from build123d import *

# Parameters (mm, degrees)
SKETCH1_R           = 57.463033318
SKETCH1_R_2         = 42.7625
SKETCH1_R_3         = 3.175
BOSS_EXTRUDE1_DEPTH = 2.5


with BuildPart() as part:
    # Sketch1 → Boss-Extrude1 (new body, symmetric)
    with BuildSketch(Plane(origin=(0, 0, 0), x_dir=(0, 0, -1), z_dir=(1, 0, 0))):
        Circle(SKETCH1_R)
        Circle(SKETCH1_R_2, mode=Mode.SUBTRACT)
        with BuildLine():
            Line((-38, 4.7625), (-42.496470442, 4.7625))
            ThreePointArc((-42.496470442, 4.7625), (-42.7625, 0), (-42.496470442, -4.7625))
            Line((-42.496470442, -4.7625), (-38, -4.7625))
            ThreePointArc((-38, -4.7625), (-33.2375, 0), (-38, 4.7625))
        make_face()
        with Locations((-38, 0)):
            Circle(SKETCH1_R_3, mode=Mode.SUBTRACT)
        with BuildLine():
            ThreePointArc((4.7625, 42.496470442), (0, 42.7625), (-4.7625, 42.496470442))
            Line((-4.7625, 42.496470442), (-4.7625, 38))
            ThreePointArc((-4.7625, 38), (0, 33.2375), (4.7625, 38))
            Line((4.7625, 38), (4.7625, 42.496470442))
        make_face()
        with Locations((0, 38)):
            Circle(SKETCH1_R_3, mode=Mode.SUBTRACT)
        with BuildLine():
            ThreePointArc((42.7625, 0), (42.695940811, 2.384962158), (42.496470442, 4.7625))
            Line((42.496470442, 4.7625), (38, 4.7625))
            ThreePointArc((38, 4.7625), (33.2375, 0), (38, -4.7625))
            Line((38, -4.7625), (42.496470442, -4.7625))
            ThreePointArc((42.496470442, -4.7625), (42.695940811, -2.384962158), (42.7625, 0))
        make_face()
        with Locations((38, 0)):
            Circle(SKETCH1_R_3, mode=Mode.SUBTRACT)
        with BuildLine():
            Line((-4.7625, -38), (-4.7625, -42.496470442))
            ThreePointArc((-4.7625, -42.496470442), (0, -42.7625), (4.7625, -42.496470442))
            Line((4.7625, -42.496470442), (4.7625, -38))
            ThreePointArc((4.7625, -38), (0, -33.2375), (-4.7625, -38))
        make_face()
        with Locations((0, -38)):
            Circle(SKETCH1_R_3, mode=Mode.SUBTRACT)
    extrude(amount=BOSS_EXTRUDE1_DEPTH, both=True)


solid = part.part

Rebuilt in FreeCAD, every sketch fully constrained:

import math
import FreeCAD as App
import Part
import Sketcher
Q = App.Units.Quantity

doc = App.newDocument("Part")
body = doc.addObject("PartDesign::Body", "Body")

sketch1 = body.newObject("Sketcher::SketchObject", "Sketch")
sketch1.AttachmentSupport = (doc.getObject("YZ_Plane"), [""])
sketch1.MapMode = "FlatFace"
sketch1.addGeometry(Part.Circle(App.Vector(0, 0, 0), App.Vector(0, 0, 1), 57.5), False)
sketch1.addGeometry(Part.Circle(App.Vector(-38, 0, 0), App.Vector(0, 0, 1), 3.2), False)
sketch1.addGeometry(Part.Circle(App.Vector(0, 38, 0), App.Vector(0, 0, 1), 3.2), False)
sketch1.addGeometry(Part.ArcOfCircle(Part.Circle(App.Vector(0, 0, 0), App.Vector(0, 0, 1), 42.8), math.radians(6), math.radians(84)), False)
sketch1.addGeometry(Part.LineSegment(App.Vector(42.5, 4.8, 0), App.Vector(38, 4.8, 0)), False)
sketch1.addGeometry(Part.ArcOfCircle(Part.Circle(App.Vector(38, 0, 0), App.Vector(0, 0, 1), 4.8), math.radians(90), math.radians(270)), False)
sketch1.addGeometry(Part.LineSegment(App.Vector(38, -4.8, 0), App.Vector(42.5, -4.8, 0)), False)
sketch1.addGeometry(Part.ArcOfCircle(Part.Circle(App.Vector(0, 0, 0), App.Vector(0, 0, 1), 42.8), math.radians(-84), math.radians(-6)), False)
sketch1.addGeometry(Part.LineSegment(App.Vector(4.8, -42.5, 0), App.Vector(4.8, -38, 0)), False)
sketch1.addGeometry(Part.ArcOfCircle(Part.Circle(App.Vector(0, -38, 0), App.Vector(0, 0, 1), 4.8), math.radians(0), math.radians(180)), False)
sketch1.addGeometry(Part.LineSegment(App.Vector(-4.8, -38, 0), App.Vector(-4.8, -42.5, 0)), False)
sketch1.addGeometry(Part.ArcOfCircle(Part.Circle(App.Vector(0, 0, 0), App.Vector(0, 0, 1), 42.8), math.radians(-174), math.radians(-96)), False)
sketch1.addGeometry(Part.LineSegment(App.Vector(-42.5, -4.8, 0), App.Vector(-38, -4.8, 0)), False)
sketch1.addGeometry(Part.ArcOfCircle(Part.Circle(App.Vector(-38, 0, 0), App.Vector(0, 0, 1), 4.8), math.radians(-90), math.radians(90)), False)
sketch1.addGeometry(Part.LineSegment(App.Vector(-38, 4.8, 0), App.Vector(-42.5, 4.8, 0)), False)
sketch1.addGeometry(Part.ArcOfCircle(Part.Circle(App.Vector(0, 0, 0), App.Vector(0, 0, 1), 42.8), math.radians(96), math.radians(174)), False)
sketch1.addGeometry(Part.LineSegment(App.Vector(-4.8, 42.5, 0), App.Vector(-4.8, 38, 0)), False)
sketch1.addGeometry(Part.ArcOfCircle(Part.Circle(App.Vector(0, 38, 0), App.Vector(0, 0, 1), 4.8), math.radians(180), math.radians(360)), False)
sketch1.addGeometry(Part.LineSegment(App.Vector(4.8, 38, 0), App.Vector(4.8, 42.5, 0)), False)
sketch1.addGeometry(Part.Circle(App.Vector(0, -38, 0), App.Vector(0, 0, 1), 3.2), False)
sketch1.addGeometry(Part.Circle(App.Vector(38, 0, 0), App.Vector(0, 0, 1), 3.2), False)
sketch1.addConstraint(Sketcher.Constraint("Coincident", 3, 1, 4, 1))
sketch1.addConstraint(Sketcher.Constraint("Tangent", 4, 2, 5, 1))
sketch1.addConstraint(Sketcher.Constraint("Tangent", 5, 2, 6, 1))
sketch1.addConstraint(Sketcher.Constraint("Coincident", 6, 2, 7, 2))
sketch1.addConstraint(Sketcher.Constraint("Coincident", 7, 1, 8, 1))
sketch1.addConstraint(Sketcher.Constraint("Tangent", 8, 2, 9, 1))
sketch1.addConstraint(Sketcher.Constraint("Tangent", 9, 2, 10, 1))
sketch1.addConstraint(Sketcher.Constraint("Coincident", 10, 2, 11, 2))
sketch1.addConstraint(Sketcher.Constraint("Coincident", 11, 1, 12, 1))
sketch1.addConstraint(Sketcher.Constraint("Tangent", 12, 2, 13, 1))
sketch1.addConstraint(Sketcher.Constraint("Tangent", 13, 2, 14, 1))
sketch1.addConstraint(Sketcher.Constraint("Coincident", 14, 2, 15, 2))
sketch1.addConstraint(Sketcher.Constraint("Coincident", 15, 1, 16, 1))
sketch1.addConstraint(Sketcher.Constraint("Tangent", 16, 2, 17, 1))
sketch1.addConstraint(Sketcher.Constraint("Tangent", 17, 2, 18, 1))
sketch1.addConstraint(Sketcher.Constraint("Coincident", 18, 2, 3, 2))
sketch1.addConstraint(Sketcher.Constraint("Horizontal", 4))
sketch1.addConstraint(Sketcher.Constraint("Horizontal", 6))
sketch1.addConstraint(Sketcher.Constraint("Vertical", 8))
sketch1.addConstraint(Sketcher.Constraint("Vertical", 10))
sketch1.addConstraint(Sketcher.Constraint("Horizontal", 12))
sketch1.addConstraint(Sketcher.Constraint("Horizontal", 14))
sketch1.addConstraint(Sketcher.Constraint("Vertical", 16))
sketch1.addConstraint(Sketcher.Constraint("Vertical", 18))
sketch1.addConstraint(Sketcher.Constraint("Coincident", 0, 3, -1, 1))
sketch1.addConstraint(Sketcher.Constraint("Coincident", 3, 3, -1, 1))
sketch1.addConstraint(Sketcher.Constraint("Coincident", 7, 3, -1, 1))
sketch1.addConstraint(Sketcher.Constraint("Coincident", 11, 3, -1, 1))
sketch1.addConstraint(Sketcher.Constraint("Coincident", 15, 3, -1, 1))
sketch1.addConstraint(Sketcher.Constraint("Coincident", 13, 3, 1, 3))
sketch1.addConstraint(Sketcher.Constraint("Coincident", 17, 3, 2, 3))
sketch1.addConstraint(Sketcher.Constraint("Coincident", 19, 3, 9, 3))
sketch1.addConstraint(Sketcher.Constraint("Coincident", 20, 3, 5, 3))
sketch1.addConstraint(Sketcher.Constraint("Equal", 1, 2))
sketch1.addConstraint(Sketcher.Constraint("Equal", 3, 7))
sketch1.addConstraint(Sketcher.Constraint("Equal", 5, 9))
sketch1.addConstraint(Sketcher.Constraint("Equal", 7, 11))
sketch1.addConstraint(Sketcher.Constraint("Equal", 9, 13))
sketch1.addConstraint(Sketcher.Constraint("Equal", 11, 15))
sketch1.addConstraint(Sketcher.Constraint("Equal", 13, 17))
sketch1.addConstraint(Sketcher.Constraint("Equal", 2, 19))
sketch1.addConstraint(Sketcher.Constraint("Equal", 19, 20))
sketch1.addConstraint(Sketcher.Constraint("Symmetric", 1, 3, 5, 3, -1, 1))
sketch1.addConstraint(Sketcher.Constraint("Symmetric", 2, 3, 9, 3, -1, 1))
sketch1.addConstraint(Sketcher.Constraint("PointOnObject", 1, 3, -1))
sketch1.addConstraint(Sketcher.Constraint("PointOnObject", 2, 3, -2))
sketch1.addConstraint(Sketcher.Constraint("Equal", 14, 8))
sketch1.addConstraint(Sketcher.Constraint("Diameter", 1, Q("0.25 in")))
sketch1.addConstraint(Sketcher.Constraint("Radius", 5, Q("0.1875 in")))
sketch1.addConstraint(Sketcher.Constraint("Radius", 3, 42.7625))
sketch1.addConstraint(Sketcher.Constraint("Diameter", 0, 114.926067))
sketch1.addConstraint(Sketcher.Constraint("DistanceX", 4, 2, 4, 1, 4.49647))
pad1 = body.newObject("PartDesign::Pad", "Pad")
pad1.Profile = sketch1
pad1.Length = 5
pad1.Midplane = True

doc.recompute()
